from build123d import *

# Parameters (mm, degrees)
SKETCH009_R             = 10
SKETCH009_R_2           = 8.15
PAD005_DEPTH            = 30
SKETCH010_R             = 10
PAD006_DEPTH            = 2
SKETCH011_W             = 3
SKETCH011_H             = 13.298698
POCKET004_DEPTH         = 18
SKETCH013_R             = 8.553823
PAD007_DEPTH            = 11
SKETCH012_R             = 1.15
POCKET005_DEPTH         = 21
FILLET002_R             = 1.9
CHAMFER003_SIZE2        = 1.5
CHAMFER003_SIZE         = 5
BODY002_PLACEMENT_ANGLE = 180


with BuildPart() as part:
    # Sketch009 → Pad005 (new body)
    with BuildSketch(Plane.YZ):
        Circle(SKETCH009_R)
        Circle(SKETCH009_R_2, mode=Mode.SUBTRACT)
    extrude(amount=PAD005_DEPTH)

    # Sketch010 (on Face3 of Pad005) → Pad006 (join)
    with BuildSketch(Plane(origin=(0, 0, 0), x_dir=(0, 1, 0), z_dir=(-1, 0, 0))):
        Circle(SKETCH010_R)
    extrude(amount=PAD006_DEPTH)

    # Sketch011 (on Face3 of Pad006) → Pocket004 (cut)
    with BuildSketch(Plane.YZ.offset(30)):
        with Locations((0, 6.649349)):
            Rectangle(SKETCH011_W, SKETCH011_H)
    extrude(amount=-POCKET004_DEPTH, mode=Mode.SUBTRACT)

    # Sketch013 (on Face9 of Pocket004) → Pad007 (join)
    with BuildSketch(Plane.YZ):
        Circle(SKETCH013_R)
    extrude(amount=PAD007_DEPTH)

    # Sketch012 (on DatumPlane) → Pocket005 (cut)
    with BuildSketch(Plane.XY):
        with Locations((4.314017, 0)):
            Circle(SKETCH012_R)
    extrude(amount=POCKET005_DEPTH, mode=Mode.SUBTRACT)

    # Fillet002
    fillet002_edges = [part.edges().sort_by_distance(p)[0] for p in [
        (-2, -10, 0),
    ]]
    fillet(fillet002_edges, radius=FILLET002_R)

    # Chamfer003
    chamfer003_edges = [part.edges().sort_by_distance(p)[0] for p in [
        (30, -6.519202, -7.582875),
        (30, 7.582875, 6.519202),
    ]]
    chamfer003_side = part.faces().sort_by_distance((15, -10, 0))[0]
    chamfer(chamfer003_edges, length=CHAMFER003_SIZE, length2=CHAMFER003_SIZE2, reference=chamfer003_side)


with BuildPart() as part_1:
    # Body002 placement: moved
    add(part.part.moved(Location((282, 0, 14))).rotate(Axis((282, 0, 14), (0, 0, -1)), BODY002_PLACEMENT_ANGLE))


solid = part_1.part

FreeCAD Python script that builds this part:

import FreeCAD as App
import Part
import Sketcher


def edges_at(feature, points):
    """Names of the edges that pass closest to the given points."""
    edges = feature.Shape.Edges
    near = lambda p: min(range(len(edges)), key=lambda i: edges[i].distToShape(Part.Vertex(*p))[0])
    return sorted({f"Edge{near(p) + 1}" for p in points})

doc = App.newDocument("Part")
body = doc.addObject("PartDesign::Body", "Body")

# Sketch on YZ plane
sketch1 = body.newObject("Sketcher::SketchObject", "Sketch")
sketch1.AttachmentSupport = (doc.getObject("YZ_Plane"), [""])
sketch1.MapMode = "FlatFace"
sketch1.addGeometry(Part.Circle(App.Vector(0, 0, 0), App.Vector(0, 0, 1), 10), False)
sketch1.addGeometry(Part.Circle(App.Vector(0, 0, 0), App.Vector(0, 0, 1), 8.15), False)
sketch1.addConstraint(Sketcher.Constraint("Coincident", 0, 3, -1, 1))
sketch1.addConstraint(Sketcher.Constraint("Coincident", 1, 3, -1, 1))
sketch1.addConstraint(Sketcher.Constraint("Diameter", 0, 20.0))
sketch1.addConstraint(Sketcher.Constraint("Diameter", 1, 16.3))
pad1 = body.newObject("PartDesign::Pad", "Pad")
pad1.Profile = sketch1
pad1.Length = 30

# Sketch on YZ plane
sketch2 = body.newObject("Sketcher::SketchObject", "Sketch001")
sketch2.AttachmentSupport = (doc.getObject("YZ_Plane"), [""])
sketch2.MapMode = "FlatFace"
sketch2.addGeometry(Part.Circle(App.Vector(0, 0, 0), App.Vector(0, 0, 1), 10), False)
sketch2.addConstraint(Sketcher.Constraint("Coincident", 0, 3, -1, 1))
sketch2.addConstraint(Sketcher.Constraint("Diameter", 0, 20.0))
pad2 = body.newObject("PartDesign::Pad", "Pad001")
pad2.Profile = sketch2
pad2.Length = 2
pad2.Reversed = True

# Sketch on YZ plane
sketch3 = body.newObject("Sketcher::SketchObject", "Sketch002")
sketch3.AttachmentSupport = (doc.getObject("YZ_Plane"), [""])
sketch3.MapMode = "FlatFace"
sketch3.AttachmentOffset = App.Placement(App.Vector(0, 0, 30), App.Rotation())
sketch3.addGeometry(Part.LineSegment(App.Vector(-1.5, 13.298698, 0), App.Vector(-1.5, 0, 0)), False)
sketch3.addGeometry(Part.LineSegment(App.Vector(-1.5, 0, 0), App.Vector(1.5, 0, 0)), False)
sketch3.addGeometry(Part.LineSegment(App.Vector(1.5, 0, 0), App.Vector(1.5, 13.298698, 0)), False)
sketch3.addGeometry(Part.LineSegment(App.Vector(1.5, 13.298698, 0), App.Vector(-1.5, 13.298698, 0)), False)
sketch3.addConstraint(Sketcher.Constraint("Coincident", 0, 2, 1, 1))
sketch3.addConstraint(Sketcher.Constraint("Coincident", 1, 2, 2, 1))
sketch3.addConstraint(Sketcher.Constraint("Coincident", 2, 2, 3, 1))
sketch3.addConstraint(Sketcher.Constraint("Coincident", 3, 2, 0, 1))
sketch3.addConstraint(Sketcher.Constraint("Vertical", 0))
sketch3.addConstraint(Sketcher.Constraint("Horizontal", 1))
sketch3.addConstraint(Sketcher.Constraint("Vertical", 2))
sketch3.addConstraint(Sketcher.Constraint("Horizontal", 3))
sketch3.addConstraint(Sketcher.Constraint("Symmetric", 0, 2, 1, 2, -1, 1))
sketch3.addConstraint(Sketcher.Constraint("DistanceX", 1, 1, 1, 2, 3.0))
sketch3.addConstraint(Sketcher.Constraint("DistanceY", 0, 2, 0, 1, 13.298698))
pocket1 = body.newObject("PartDesign::Pocket", "Pocket")
pocket1.Profile = sketch3
pocket1.Length = 18

# Sketch on YZ plane
sketch4 = body.newObject("Sketcher::SketchObject", "Sketch003")
sketch4.AttachmentSupport = (doc.getObject("YZ_Plane"), [""])
sketch4.MapMode = "FlatFace"
sketch4.addGeometry(Part.Circle(App.Vector(0, 0, 0), App.Vector(0, 0, 1), 8.553823), False)
sketch4.addConstraint(Sketcher.Constraint("Coincident", 0, 3, -1, 1))
sketch4.addConstraint(Sketcher.Constraint("Diameter", 0, 17.107646))
pad3 = body.newObject("PartDesign::Pad", "Pad002")
pad3.Profile = sketch4
pad3.Length = 11

# Sketch on XY plane
sketch5 = body.newObject("Sketcher::SketchObject", "Sketch004")
sketch5.AttachmentSupport = (doc.getObject("XY_Plane"), [""])
sketch5.MapMode = "FlatFace"
sketch5.addGeometry(Part.Circle(App.Vector(4.314017, 0, 0), App.Vector(0, 0, 1), 1.15), False)
sketch5.addConstraint(Sketcher.Constraint("PointOnObject", 0, 3, -1))
sketch5.addConstraint(Sketcher.Constraint("Diameter", 0, 2.3))
sketch5.addConstraint(Sketcher.Constraint("DistanceX", -1, 1, 0, 3, 4.314017))
pocket2 = body.newObject("PartDesign::Pocket", "Pocket001")
pocket2.Profile = sketch5
pocket2.Length = 21
pocket2.Reversed = True
doc.recompute()

fillet = body.newObject("PartDesign::Fillet", "Fillet")
fillet.Base = (pocket2, edges_at(pocket2, [(-2, -10, 0)]))
fillet.Radius = 1.9
doc.recompute()

chamfer = body.newObject("PartDesign::Chamfer", "Chamfer")
chamfer.Base = (fillet, edges_at(fillet, [(30, -6.519, -7.583), (30, 7.583, 6.519)]))
chamfer.ChamferType = "Two distances"
chamfer.Size = 5
chamfer.Size2 = 1.5
body2 = doc.addObject("PartDesign::Body", "Body001")
doc.recompute()

body.Placement = App.Placement(App.Vector(282, 0, 14), App.Rotation(App.Vector(0, 0, -1), 180))
boolean = body2.newObject("PartDesign::Boolean", "Boolean")
boolean.Type = "Fuse"
boolean.addObjects([body])

doc.recompute()
